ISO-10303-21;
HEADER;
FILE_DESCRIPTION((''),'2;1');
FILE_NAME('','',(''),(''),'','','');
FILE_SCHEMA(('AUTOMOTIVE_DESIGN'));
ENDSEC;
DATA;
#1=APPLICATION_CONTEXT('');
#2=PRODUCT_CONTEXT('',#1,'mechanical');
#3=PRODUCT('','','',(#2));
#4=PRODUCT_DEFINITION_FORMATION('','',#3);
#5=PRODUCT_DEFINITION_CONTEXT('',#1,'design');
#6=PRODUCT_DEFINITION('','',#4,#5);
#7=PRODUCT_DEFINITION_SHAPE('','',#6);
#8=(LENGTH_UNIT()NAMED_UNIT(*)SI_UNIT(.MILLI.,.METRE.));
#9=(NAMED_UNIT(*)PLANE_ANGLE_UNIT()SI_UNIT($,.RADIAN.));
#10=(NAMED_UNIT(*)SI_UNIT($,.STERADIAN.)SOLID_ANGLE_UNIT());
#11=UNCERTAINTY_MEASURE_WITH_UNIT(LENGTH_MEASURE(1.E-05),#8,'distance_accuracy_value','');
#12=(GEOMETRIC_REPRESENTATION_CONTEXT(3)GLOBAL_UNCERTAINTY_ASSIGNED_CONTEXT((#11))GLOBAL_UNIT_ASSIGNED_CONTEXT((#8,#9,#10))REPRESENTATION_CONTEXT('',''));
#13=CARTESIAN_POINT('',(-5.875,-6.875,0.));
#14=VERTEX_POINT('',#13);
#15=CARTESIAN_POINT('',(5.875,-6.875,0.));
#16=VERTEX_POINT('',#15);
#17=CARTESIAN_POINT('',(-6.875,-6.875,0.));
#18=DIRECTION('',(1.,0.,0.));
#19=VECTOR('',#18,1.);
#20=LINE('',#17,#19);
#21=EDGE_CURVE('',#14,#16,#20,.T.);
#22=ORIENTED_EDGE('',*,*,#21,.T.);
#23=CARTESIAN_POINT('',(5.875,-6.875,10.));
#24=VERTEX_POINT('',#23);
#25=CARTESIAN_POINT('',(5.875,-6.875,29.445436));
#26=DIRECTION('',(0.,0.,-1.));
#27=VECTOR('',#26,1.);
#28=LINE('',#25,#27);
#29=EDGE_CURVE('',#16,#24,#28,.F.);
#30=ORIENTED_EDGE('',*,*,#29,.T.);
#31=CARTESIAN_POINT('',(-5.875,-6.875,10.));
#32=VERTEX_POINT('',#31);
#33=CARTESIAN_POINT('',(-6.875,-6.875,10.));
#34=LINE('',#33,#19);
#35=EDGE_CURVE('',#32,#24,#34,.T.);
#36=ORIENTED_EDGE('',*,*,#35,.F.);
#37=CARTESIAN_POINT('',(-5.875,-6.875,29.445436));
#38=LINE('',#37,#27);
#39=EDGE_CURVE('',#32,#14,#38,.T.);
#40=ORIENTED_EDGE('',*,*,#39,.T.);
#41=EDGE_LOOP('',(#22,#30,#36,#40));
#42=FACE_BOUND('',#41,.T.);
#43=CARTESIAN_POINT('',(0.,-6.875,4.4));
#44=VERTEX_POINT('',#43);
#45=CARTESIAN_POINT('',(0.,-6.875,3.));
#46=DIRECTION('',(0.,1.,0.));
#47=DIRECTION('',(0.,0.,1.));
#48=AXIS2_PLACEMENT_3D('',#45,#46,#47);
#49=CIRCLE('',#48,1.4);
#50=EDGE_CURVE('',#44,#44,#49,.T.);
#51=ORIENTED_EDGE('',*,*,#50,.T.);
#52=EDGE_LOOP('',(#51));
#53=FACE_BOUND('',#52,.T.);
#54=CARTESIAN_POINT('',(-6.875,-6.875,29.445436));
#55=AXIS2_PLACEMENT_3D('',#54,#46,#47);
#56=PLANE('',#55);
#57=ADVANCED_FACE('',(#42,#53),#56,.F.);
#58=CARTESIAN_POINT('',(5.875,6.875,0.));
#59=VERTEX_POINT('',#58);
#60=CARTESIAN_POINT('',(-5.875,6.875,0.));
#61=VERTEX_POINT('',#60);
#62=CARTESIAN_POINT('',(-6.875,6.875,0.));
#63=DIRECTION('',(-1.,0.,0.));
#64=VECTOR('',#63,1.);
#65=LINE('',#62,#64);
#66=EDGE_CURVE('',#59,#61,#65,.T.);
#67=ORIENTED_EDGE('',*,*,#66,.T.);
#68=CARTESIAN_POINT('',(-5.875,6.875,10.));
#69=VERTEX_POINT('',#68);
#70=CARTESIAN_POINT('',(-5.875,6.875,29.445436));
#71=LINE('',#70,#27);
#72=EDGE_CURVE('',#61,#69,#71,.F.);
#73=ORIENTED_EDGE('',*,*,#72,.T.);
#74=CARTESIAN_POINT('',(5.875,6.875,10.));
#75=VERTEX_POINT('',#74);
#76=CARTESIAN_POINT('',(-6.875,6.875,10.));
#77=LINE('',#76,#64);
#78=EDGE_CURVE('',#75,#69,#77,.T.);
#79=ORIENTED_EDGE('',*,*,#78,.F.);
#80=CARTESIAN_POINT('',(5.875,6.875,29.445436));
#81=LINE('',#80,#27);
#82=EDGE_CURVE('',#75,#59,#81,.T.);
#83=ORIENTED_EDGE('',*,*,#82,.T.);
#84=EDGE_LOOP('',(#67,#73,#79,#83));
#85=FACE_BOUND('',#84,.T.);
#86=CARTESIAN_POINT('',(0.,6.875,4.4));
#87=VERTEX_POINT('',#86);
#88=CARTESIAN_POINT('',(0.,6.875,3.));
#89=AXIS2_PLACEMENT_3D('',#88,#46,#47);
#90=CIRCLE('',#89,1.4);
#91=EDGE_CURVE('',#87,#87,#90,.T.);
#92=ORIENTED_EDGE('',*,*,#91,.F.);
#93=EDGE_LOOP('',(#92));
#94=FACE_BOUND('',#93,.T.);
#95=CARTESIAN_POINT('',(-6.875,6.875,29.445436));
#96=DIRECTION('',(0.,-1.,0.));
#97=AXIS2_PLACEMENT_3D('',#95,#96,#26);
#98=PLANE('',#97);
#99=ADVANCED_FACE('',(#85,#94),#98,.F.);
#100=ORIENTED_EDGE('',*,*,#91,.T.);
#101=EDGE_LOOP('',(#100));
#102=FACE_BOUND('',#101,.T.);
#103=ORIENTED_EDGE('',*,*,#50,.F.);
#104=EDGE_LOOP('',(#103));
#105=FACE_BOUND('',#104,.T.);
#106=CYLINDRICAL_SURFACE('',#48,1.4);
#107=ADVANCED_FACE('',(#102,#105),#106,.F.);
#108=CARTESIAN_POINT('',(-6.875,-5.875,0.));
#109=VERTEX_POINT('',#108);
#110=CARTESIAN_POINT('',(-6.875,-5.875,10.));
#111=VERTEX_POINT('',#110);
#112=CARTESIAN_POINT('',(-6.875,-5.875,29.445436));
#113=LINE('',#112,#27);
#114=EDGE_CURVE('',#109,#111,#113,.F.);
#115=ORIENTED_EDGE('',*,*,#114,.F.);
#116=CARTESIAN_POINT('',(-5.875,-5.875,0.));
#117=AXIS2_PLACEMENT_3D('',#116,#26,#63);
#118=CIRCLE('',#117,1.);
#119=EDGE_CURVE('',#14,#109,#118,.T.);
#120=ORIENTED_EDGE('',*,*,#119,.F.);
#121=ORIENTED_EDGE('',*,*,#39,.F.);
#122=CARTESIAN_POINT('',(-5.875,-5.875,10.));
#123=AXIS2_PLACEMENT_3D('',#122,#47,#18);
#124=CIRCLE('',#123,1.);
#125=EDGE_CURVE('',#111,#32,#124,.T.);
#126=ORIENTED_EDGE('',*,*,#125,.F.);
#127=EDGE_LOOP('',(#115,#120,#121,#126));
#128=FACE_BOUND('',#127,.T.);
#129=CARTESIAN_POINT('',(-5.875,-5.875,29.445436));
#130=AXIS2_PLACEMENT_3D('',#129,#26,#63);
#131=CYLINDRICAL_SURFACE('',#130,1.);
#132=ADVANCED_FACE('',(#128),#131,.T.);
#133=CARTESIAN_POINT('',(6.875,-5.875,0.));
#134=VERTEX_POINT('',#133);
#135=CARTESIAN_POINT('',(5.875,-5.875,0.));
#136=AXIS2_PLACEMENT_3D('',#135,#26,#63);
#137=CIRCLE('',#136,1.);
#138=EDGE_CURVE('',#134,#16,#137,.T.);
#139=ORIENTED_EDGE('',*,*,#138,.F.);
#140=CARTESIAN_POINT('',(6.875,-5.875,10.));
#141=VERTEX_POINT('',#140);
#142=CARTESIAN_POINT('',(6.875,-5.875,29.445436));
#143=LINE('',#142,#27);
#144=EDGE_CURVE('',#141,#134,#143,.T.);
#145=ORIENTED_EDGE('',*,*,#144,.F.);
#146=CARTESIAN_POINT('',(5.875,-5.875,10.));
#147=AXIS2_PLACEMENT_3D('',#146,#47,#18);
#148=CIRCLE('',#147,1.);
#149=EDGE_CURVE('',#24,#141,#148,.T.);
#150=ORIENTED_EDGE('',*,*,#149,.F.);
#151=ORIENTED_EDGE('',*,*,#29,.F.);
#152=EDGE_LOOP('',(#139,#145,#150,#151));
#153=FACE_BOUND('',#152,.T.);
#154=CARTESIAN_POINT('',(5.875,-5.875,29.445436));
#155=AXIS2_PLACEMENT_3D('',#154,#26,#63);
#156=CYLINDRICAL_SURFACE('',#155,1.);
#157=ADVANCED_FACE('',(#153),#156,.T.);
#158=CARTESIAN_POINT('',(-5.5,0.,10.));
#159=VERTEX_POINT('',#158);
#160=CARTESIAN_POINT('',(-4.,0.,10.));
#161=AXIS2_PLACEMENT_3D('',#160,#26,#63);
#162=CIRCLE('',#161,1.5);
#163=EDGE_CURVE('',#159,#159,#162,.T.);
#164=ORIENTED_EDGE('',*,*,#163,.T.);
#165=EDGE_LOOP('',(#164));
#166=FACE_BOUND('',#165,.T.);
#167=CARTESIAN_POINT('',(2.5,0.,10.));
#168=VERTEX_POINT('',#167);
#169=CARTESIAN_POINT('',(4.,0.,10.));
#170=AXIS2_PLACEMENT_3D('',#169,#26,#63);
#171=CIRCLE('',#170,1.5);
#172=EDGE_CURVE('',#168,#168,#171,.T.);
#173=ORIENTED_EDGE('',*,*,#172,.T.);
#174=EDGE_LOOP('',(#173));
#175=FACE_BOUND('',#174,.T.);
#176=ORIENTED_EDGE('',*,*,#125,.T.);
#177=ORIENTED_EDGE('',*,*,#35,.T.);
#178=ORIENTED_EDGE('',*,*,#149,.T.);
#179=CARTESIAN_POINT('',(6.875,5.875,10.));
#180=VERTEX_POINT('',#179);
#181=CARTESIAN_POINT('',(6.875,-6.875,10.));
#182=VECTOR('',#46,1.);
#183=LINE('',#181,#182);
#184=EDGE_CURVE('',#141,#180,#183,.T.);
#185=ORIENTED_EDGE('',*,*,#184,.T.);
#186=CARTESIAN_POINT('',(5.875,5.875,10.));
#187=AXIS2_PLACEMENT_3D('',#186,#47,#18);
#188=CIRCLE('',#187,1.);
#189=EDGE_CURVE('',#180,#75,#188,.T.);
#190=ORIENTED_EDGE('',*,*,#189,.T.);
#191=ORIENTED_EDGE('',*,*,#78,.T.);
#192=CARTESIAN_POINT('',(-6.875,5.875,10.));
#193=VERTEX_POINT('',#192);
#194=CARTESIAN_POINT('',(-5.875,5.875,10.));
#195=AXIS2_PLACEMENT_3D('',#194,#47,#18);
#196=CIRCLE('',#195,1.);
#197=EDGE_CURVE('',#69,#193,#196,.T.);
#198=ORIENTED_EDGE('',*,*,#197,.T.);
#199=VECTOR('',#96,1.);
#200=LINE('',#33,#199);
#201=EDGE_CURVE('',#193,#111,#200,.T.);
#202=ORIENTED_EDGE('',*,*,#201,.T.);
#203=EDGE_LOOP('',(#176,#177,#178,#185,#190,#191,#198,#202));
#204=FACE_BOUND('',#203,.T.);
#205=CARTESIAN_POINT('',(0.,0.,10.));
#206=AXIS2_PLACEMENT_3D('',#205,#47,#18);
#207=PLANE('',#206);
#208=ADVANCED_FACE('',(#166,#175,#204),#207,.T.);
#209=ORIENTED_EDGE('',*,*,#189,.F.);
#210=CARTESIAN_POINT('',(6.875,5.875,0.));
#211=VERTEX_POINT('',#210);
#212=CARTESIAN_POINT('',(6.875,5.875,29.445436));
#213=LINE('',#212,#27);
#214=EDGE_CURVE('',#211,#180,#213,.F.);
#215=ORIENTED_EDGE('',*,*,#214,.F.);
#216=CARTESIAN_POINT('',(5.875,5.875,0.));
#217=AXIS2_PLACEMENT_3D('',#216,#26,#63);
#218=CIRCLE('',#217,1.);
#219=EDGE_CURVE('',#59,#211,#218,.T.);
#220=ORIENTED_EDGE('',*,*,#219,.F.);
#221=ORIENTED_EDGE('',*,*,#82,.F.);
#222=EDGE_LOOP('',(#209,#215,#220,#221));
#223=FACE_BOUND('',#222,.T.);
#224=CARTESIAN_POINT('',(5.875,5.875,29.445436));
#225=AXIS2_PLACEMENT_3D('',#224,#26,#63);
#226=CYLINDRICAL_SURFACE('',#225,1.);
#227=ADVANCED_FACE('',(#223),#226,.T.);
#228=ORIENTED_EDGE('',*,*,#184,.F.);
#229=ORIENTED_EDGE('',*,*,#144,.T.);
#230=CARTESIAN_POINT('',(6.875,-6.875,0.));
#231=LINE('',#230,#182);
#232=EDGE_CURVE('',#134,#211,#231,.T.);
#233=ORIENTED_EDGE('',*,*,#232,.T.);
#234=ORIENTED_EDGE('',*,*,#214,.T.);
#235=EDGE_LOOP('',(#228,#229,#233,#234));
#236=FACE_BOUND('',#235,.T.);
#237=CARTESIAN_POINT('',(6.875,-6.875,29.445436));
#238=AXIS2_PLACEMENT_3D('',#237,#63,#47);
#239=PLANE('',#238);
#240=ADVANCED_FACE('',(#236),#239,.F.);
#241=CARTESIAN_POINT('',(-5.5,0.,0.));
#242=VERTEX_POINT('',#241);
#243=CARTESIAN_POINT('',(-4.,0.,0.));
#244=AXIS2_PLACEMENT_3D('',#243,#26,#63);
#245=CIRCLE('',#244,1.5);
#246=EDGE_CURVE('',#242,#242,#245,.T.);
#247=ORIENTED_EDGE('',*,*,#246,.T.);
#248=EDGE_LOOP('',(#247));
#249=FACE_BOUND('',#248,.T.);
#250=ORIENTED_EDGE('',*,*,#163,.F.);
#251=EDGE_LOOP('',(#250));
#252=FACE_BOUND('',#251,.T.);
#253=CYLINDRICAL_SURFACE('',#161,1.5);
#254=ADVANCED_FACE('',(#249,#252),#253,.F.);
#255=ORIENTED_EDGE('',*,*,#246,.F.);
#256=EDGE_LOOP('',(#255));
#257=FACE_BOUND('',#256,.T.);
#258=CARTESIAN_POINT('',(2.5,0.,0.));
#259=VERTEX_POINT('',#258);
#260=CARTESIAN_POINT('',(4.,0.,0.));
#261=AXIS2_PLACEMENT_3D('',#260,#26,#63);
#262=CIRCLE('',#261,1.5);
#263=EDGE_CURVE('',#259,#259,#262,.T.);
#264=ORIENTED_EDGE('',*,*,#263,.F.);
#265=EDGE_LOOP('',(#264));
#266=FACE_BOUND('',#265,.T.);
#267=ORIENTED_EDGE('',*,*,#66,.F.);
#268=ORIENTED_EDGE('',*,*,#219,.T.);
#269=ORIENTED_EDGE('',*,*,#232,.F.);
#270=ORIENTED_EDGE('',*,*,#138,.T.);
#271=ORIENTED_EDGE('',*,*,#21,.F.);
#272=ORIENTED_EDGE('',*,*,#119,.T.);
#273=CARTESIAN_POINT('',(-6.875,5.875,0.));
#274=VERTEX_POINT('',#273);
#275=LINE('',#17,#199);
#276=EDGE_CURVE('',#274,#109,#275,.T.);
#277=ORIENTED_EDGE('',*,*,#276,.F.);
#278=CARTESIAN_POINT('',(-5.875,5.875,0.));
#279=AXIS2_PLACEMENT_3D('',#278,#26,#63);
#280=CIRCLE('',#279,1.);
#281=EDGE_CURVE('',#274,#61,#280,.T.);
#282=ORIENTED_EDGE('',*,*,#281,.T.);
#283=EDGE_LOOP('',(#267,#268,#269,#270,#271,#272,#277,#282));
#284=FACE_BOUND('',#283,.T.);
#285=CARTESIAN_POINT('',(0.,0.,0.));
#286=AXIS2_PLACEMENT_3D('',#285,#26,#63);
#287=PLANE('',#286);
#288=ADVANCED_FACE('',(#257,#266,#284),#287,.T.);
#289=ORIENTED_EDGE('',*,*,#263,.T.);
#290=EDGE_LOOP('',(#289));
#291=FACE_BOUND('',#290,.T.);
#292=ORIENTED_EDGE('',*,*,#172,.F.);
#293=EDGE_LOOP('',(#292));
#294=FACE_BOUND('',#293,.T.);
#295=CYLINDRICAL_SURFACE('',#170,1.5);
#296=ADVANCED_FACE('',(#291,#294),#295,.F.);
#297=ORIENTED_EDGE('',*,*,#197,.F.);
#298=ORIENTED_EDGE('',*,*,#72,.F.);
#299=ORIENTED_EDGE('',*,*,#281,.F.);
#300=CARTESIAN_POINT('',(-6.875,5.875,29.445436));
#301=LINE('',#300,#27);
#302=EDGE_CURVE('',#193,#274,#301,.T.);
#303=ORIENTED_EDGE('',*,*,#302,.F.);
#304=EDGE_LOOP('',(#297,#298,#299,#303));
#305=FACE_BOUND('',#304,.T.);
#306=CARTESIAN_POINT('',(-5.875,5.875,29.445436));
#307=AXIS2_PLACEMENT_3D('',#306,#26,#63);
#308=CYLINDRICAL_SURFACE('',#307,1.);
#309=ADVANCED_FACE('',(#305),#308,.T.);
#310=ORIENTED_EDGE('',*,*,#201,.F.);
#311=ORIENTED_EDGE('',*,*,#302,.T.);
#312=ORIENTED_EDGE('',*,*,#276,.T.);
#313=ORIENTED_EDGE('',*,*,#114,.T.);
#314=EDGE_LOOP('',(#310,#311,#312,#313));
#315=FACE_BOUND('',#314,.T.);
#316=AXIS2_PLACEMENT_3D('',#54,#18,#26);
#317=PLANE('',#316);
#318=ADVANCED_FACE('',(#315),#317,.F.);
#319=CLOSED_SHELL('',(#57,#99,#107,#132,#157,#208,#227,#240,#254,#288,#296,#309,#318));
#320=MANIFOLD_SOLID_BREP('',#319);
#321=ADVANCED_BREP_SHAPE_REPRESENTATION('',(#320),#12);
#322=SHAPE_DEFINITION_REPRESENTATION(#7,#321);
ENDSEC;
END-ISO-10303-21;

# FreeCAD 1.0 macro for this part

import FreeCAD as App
import Part
import Sketcher

V = App.Vector
Q = App.Units.Quantity


def edges_at(feature, points):
    """Names of the edges that pass closest to the given points."""
    edges = feature.Shape.Edges
    near = lambda p: min(range(len(edges)), key=lambda i: edges[i].distToShape(Part.Vertex(*p))[0])
    return sorted({f"Edge{near(p) + 1}" for p in points})

doc = App.newDocument("Part")
body = doc.addObject("PartDesign::Body", "Body")

# Sketch on XY plane
sketch1 = doc.addObject("Sketcher::SketchObject", "Sketch")
body.addObject(sketch1)
sketch1.AttachmentSupport = (doc.XY_Plane, [""])
sketch1.MapMode = "FlatFace"
sketch1.addGeometry([
    Part.LineSegment(V(-7, 7, 0), V(-7, -7, 0)),
    Part.LineSegment(V(-7, -7, 0), V(7, -7, 0)),
    Part.LineSegment(V(7, -7, 0), V(7, 7, 0)),
    Part.LineSegment(V(7, 7, 0), V(-7, 7, 0)),
], False)
sketch1.addConstraint([
    Sketcher.Constraint("Coincident", 0, 2, 1, 1),
    Sketcher.Constraint("Coincident", 1, 2, 2, 1),
    Sketcher.Constraint("Coincident", 2, 2, 3, 1),
    Sketcher.Constraint("Coincident", 3, 2, 0, 1),
    Sketcher.Constraint("Vertical", 0),
    Sketcher.Constraint("Horizontal", 1),
    Sketcher.Constraint("Vertical", 2),
    Sketcher.Constraint("Horizontal", 3),
    Sketcher.Constraint("Symmetric", 0, 2, 2, 2, -1, 1),
    Sketcher.Constraint("Equal", 3, 0),
    Sketcher.Constraint("DistanceX", 1, 1, 1, 2, Q("13.75 mm")),
])
pad1 = doc.addObject("PartDesign::Pad", "Pad")
body.addObject(pad1)
pad1.Profile = sketch1
pad1.Length = 10

# Sketch on XZ plane
sketch2 = doc.addObject("Sketcher::SketchObject", "Sketch001")
body.addObject(sketch2)
sketch2.AttachmentSupport = (doc.XZ_Plane, [""])
sketch2.MapMode = "FlatFace"
sketch2.AttachmentOffset = App.Placement(V(0, 0, -6.875), App.Rotation())
sketch2.addGeometry(Part.Circle(V(0, 3, 0), V(0, 0, 1), 1.4), False)
sketch2.addConstraint([
    Sketcher.Constraint("PointOnObject", 0, 3, -2),
    Sketcher.Constraint("Diameter", 0, Q("2.8 mm")),
    Sketcher.Constraint("DistanceY", -1, 1, 0, 3, Q("3 mm")),
])
pocket1 = doc.addObject("PartDesign::Pocket", "Pocket")
body.addObject(pocket1)
pocket1.Profile = sketch2
pocket1.Type = "ThroughAll"
pocket1.Reversed = True

# Sketch on XY plane
sketch3 = doc.addObject("Sketcher::SketchObject", "Sketch002")
body.addObject(sketch3)
sketch3.AttachmentSupport = (doc.XY_Plane, [""])
sketch3.MapMode = "FlatFace"
sketch3.addGeometry([
    Part.Circle(V(-4, 0, 0), V(0, 0, 1), 1.5),
    Part.Circle(V(4, 0, 0), V(0, 0, 1), 1.5),
], False)
sketch3.addConstraint([
    Sketcher.Constraint("Equal", 0, 1),
    Sketcher.Constraint("Symmetric", 0, 3, 1, 3, -1, 1),
    Sketcher.Constraint("PointOnObject", 0, 3, -1),
    Sketcher.Constraint("Diameter", 0, Q("3 mm")),
    Sketcher.Constraint("DistanceX", 0, 3, -1, 1, Q("4 mm")),
])
pocket2 = doc.addObject("PartDesign::Pocket", "Pocket001")
body.addObject(pocket2)
pocket2.Profile = sketch3
pocket2.Type = "ThroughAll"
pocket2.Reversed = True
doc.recompute()

fillet = doc.addObject("PartDesign::Fillet", "Fillet")
body.addObject(fillet)
fillet.Base = (pocket2, edges_at(pocket2, [
    (-6.875, 6.875, 5),
    (-6.875, -6.875, 5),
    (6.875, -6.875, 5),
    (6.875, 6.875, 5),
]))
fillet.Radius = 1

doc.recompute()
